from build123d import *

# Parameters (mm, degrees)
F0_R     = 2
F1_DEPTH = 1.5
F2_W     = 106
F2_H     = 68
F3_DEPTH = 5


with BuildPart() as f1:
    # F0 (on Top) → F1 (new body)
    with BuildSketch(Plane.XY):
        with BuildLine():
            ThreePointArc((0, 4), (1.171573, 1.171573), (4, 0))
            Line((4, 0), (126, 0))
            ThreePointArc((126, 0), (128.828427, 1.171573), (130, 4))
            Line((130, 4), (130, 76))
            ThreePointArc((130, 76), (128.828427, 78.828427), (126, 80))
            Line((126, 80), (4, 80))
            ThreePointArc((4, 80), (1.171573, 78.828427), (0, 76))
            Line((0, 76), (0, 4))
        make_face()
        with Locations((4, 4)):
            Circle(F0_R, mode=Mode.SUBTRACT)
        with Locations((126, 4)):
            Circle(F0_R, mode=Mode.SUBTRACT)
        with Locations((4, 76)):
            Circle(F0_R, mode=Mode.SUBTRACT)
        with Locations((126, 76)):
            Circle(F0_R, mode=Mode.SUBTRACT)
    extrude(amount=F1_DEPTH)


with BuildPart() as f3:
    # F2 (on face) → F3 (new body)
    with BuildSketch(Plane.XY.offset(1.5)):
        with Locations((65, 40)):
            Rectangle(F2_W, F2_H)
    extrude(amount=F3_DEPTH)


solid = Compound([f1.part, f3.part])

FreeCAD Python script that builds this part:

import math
import FreeCAD as App
import Part
import Sketcher

V = App.Vector

doc = App.newDocument("Part")
params = doc.addObject("Spreadsheet::Sheet", "Params")
for row, (alias, value) in enumerate([
    ("sketch1_diameter", "4 mm"),
    ("sketch1_radius", "4 mm"),
    ("sketch1_width", "122 mm"),
    ("sketch1_height", "72 mm"),
    ("pad1_length", "1.5 mm"),
    ("sketch2_width", "106 mm"),
    ("sketch2_height", "68 mm"),
    ("pad2_length", "5 mm"),
], start=1):
    params.set(f"A{row}", alias)
    params.set(f"B{row}", "=" + value)
    params.setAlias(f"B{row}", alias)

body = doc.addObject("PartDesign::Body", "Body")

sketch1 = body.newObject("Sketcher::SketchObject", "Sketch")
sketch1.AttachmentSupport = (doc.getObject("XY_Plane"), [""])
sketch1.MapMode = "FlatFace"
sketch1.addGeometry([
    Part.ArcOfCircle(Part.Circle(V(4, 4, 0), V(0, 0, 1), 4), math.radians(-180), math.radians(-90)),
    Part.LineSegment(V(4, 0, 0), V(126, 0, 0)),
    Part.ArcOfCircle(Part.Circle(V(126, 4, 0), V(0, 0, 1), 4), math.radians(-90), math.radians(0)),
    Part.LineSegment(V(130, 4, 0), V(130, 76, 0)),
    Part.ArcOfCircle(Part.Circle(V(126, 76, 0), V(0, 0, 1), 4), math.radians(0), math.radians(90)),
    Part.LineSegment(V(126, 80, 0), V(4, 80, 0)),
    Part.ArcOfCircle(Part.Circle(V(4, 76, 0), V(0, 0, 1), 4), math.radians(90), math.radians(180)),
    Part.LineSegment(V(0, 76, 0), V(0, 4, 0)),
    Part.Circle(V(4, 4, 0), V(0, 0, 1), 2),
    Part.Circle(V(126, 4, 0), V(0, 0, 1), 2),
    Part.Circle(V(4, 76, 0), V(0, 0, 1), 2),
    Part.Circle(V(126, 76, 0), V(0, 0, 1), 2),
], False)
sketch1.addConstraint([
    Sketcher.Constraint("Tangent", 0, 2, 1, 1),
    Sketcher.Constraint("Tangent", 1, 2, 2, 1),
    Sketcher.Constraint("Tangent", 2, 2, 3, 1),
    Sketcher.Constraint("Tangent", 3, 2, 4, 1),
    Sketcher.Constraint("Tangent", 4, 2, 5, 1),
    Sketcher.Constraint("Tangent", 5, 2, 6, 1),
    Sketcher.Constraint("Tangent", 6, 2, 7, 1),
    Sketcher.Constraint("Tangent", 7, 2, 0, 1),
    Sketcher.Constraint("Horizontal", 1),
    Sketcher.Constraint("Vertical", 3),
    Sketcher.Constraint("Horizontal", 5),
    Sketcher.Constraint("Vertical", 7),
    Sketcher.Constraint("Coincident", 8, 3, 0, 3),
    Sketcher.Constraint("Coincident", 9, 3, 2, 3),
    Sketcher.Constraint("Coincident", 10, 3, 6, 3),
    Sketcher.Constraint("Coincident", 11, 3, 4, 3),
    Sketcher.Constraint("Equal", 0, 2),
    Sketcher.Constraint("Equal", 2, 4),
    Sketcher.Constraint("Equal", 4, 6),
    Sketcher.Constraint("Equal", 8, 9),
    Sketcher.Constraint("Equal", 9, 10),
    Sketcher.Constraint("Equal", 10, 11),
    Sketcher.Constraint("PointOnObject", 0, 2, -1),
    Sketcher.Constraint("PointOnObject", 6, 2, -2),
    Sketcher.Constraint("Diameter", 8, 4.0),
    Sketcher.Constraint("Radius", 0, 4.0),
    Sketcher.Constraint("DistanceX", 1, 1, 1, 2, 122.0),
    Sketcher.Constraint("DistanceY", 3, 1, 3, 2, 72.0),
])
sketch1.setExpression("Constraints[24]", "Params.sketch1_diameter")
sketch1.setExpression("Constraints[25]", "Params.sketch1_radius")
sketch1.setExpression("Constraints[26]", "Params.sketch1_width")
sketch1.setExpression("Constraints[27]", "Params.sketch1_height")
pad1 = body.newObject("PartDesign::Pad", "Pad")
pad1.Profile = sketch1
pad1.setExpression("Length", "Params.pad1_length")
body2 = doc.addObject("PartDesign::Body", "Body001")

sketch2 = body2.newObject("Sketcher::SketchObject", "Sketch001")
sketch2.AttachmentSupport = (doc.getObject("XY_Plane001"), [""])
sketch2.MapMode = "FlatFace"
sketch2.AttachmentOffset = App.Placement(V(0, 0, 1.5), App.Rotation())
sketch2.addGeometry([
    Part.LineSegment(V(12, 74, 0), V(12, 6, 0)),
    Part.LineSegment(V(12, 6, 0), V(118, 6, 0)),
    Part.LineSegment(V(118, 6, 0), V(118, 74, 0)),
    Part.LineSegment(V(118, 74, 0), V(12, 74, 0)),
], False)
sketch2.addConstraint([
    Sketcher.Constraint("Coincident", 0, 2, 1, 1),
    Sketcher.Constraint("Coincident", 1, 2, 2, 1),
    Sketcher.Constraint("Coincident", 2, 2, 3, 1),
    Sketcher.Constraint("Coincident", 3, 2, 0, 1),
    Sketcher.Constraint("Vertical", 0),
    Sketcher.Constraint("Horizontal", 1),
    Sketcher.Constraint("Vertical", 2),
    Sketcher.Constraint("Horizontal", 3),
    Sketcher.Constraint("DistanceX", 1, 1, 1, 2, 106.0),
    Sketcher.Constraint("DistanceY", 0, 2, 0, 1, 68.0),
    Sketcher.Constraint("DistanceX", -1, 1, 0, 2, 12.0),
    Sketcher.Constraint("DistanceY", -1, 1, 0, 2, 6.0),
])
sketch2.setExpression("Constraints[8]", "Params.sketch2_width")
sketch2.setExpression("Constraints[9]", "Params.sketch2_height")
pad2 = body2.newObject("PartDesign::Pad", "Pad001")
pad2.Profile = sketch2
pad2.setExpression("Length", "Params.pad2_length")

doc.recompute()
